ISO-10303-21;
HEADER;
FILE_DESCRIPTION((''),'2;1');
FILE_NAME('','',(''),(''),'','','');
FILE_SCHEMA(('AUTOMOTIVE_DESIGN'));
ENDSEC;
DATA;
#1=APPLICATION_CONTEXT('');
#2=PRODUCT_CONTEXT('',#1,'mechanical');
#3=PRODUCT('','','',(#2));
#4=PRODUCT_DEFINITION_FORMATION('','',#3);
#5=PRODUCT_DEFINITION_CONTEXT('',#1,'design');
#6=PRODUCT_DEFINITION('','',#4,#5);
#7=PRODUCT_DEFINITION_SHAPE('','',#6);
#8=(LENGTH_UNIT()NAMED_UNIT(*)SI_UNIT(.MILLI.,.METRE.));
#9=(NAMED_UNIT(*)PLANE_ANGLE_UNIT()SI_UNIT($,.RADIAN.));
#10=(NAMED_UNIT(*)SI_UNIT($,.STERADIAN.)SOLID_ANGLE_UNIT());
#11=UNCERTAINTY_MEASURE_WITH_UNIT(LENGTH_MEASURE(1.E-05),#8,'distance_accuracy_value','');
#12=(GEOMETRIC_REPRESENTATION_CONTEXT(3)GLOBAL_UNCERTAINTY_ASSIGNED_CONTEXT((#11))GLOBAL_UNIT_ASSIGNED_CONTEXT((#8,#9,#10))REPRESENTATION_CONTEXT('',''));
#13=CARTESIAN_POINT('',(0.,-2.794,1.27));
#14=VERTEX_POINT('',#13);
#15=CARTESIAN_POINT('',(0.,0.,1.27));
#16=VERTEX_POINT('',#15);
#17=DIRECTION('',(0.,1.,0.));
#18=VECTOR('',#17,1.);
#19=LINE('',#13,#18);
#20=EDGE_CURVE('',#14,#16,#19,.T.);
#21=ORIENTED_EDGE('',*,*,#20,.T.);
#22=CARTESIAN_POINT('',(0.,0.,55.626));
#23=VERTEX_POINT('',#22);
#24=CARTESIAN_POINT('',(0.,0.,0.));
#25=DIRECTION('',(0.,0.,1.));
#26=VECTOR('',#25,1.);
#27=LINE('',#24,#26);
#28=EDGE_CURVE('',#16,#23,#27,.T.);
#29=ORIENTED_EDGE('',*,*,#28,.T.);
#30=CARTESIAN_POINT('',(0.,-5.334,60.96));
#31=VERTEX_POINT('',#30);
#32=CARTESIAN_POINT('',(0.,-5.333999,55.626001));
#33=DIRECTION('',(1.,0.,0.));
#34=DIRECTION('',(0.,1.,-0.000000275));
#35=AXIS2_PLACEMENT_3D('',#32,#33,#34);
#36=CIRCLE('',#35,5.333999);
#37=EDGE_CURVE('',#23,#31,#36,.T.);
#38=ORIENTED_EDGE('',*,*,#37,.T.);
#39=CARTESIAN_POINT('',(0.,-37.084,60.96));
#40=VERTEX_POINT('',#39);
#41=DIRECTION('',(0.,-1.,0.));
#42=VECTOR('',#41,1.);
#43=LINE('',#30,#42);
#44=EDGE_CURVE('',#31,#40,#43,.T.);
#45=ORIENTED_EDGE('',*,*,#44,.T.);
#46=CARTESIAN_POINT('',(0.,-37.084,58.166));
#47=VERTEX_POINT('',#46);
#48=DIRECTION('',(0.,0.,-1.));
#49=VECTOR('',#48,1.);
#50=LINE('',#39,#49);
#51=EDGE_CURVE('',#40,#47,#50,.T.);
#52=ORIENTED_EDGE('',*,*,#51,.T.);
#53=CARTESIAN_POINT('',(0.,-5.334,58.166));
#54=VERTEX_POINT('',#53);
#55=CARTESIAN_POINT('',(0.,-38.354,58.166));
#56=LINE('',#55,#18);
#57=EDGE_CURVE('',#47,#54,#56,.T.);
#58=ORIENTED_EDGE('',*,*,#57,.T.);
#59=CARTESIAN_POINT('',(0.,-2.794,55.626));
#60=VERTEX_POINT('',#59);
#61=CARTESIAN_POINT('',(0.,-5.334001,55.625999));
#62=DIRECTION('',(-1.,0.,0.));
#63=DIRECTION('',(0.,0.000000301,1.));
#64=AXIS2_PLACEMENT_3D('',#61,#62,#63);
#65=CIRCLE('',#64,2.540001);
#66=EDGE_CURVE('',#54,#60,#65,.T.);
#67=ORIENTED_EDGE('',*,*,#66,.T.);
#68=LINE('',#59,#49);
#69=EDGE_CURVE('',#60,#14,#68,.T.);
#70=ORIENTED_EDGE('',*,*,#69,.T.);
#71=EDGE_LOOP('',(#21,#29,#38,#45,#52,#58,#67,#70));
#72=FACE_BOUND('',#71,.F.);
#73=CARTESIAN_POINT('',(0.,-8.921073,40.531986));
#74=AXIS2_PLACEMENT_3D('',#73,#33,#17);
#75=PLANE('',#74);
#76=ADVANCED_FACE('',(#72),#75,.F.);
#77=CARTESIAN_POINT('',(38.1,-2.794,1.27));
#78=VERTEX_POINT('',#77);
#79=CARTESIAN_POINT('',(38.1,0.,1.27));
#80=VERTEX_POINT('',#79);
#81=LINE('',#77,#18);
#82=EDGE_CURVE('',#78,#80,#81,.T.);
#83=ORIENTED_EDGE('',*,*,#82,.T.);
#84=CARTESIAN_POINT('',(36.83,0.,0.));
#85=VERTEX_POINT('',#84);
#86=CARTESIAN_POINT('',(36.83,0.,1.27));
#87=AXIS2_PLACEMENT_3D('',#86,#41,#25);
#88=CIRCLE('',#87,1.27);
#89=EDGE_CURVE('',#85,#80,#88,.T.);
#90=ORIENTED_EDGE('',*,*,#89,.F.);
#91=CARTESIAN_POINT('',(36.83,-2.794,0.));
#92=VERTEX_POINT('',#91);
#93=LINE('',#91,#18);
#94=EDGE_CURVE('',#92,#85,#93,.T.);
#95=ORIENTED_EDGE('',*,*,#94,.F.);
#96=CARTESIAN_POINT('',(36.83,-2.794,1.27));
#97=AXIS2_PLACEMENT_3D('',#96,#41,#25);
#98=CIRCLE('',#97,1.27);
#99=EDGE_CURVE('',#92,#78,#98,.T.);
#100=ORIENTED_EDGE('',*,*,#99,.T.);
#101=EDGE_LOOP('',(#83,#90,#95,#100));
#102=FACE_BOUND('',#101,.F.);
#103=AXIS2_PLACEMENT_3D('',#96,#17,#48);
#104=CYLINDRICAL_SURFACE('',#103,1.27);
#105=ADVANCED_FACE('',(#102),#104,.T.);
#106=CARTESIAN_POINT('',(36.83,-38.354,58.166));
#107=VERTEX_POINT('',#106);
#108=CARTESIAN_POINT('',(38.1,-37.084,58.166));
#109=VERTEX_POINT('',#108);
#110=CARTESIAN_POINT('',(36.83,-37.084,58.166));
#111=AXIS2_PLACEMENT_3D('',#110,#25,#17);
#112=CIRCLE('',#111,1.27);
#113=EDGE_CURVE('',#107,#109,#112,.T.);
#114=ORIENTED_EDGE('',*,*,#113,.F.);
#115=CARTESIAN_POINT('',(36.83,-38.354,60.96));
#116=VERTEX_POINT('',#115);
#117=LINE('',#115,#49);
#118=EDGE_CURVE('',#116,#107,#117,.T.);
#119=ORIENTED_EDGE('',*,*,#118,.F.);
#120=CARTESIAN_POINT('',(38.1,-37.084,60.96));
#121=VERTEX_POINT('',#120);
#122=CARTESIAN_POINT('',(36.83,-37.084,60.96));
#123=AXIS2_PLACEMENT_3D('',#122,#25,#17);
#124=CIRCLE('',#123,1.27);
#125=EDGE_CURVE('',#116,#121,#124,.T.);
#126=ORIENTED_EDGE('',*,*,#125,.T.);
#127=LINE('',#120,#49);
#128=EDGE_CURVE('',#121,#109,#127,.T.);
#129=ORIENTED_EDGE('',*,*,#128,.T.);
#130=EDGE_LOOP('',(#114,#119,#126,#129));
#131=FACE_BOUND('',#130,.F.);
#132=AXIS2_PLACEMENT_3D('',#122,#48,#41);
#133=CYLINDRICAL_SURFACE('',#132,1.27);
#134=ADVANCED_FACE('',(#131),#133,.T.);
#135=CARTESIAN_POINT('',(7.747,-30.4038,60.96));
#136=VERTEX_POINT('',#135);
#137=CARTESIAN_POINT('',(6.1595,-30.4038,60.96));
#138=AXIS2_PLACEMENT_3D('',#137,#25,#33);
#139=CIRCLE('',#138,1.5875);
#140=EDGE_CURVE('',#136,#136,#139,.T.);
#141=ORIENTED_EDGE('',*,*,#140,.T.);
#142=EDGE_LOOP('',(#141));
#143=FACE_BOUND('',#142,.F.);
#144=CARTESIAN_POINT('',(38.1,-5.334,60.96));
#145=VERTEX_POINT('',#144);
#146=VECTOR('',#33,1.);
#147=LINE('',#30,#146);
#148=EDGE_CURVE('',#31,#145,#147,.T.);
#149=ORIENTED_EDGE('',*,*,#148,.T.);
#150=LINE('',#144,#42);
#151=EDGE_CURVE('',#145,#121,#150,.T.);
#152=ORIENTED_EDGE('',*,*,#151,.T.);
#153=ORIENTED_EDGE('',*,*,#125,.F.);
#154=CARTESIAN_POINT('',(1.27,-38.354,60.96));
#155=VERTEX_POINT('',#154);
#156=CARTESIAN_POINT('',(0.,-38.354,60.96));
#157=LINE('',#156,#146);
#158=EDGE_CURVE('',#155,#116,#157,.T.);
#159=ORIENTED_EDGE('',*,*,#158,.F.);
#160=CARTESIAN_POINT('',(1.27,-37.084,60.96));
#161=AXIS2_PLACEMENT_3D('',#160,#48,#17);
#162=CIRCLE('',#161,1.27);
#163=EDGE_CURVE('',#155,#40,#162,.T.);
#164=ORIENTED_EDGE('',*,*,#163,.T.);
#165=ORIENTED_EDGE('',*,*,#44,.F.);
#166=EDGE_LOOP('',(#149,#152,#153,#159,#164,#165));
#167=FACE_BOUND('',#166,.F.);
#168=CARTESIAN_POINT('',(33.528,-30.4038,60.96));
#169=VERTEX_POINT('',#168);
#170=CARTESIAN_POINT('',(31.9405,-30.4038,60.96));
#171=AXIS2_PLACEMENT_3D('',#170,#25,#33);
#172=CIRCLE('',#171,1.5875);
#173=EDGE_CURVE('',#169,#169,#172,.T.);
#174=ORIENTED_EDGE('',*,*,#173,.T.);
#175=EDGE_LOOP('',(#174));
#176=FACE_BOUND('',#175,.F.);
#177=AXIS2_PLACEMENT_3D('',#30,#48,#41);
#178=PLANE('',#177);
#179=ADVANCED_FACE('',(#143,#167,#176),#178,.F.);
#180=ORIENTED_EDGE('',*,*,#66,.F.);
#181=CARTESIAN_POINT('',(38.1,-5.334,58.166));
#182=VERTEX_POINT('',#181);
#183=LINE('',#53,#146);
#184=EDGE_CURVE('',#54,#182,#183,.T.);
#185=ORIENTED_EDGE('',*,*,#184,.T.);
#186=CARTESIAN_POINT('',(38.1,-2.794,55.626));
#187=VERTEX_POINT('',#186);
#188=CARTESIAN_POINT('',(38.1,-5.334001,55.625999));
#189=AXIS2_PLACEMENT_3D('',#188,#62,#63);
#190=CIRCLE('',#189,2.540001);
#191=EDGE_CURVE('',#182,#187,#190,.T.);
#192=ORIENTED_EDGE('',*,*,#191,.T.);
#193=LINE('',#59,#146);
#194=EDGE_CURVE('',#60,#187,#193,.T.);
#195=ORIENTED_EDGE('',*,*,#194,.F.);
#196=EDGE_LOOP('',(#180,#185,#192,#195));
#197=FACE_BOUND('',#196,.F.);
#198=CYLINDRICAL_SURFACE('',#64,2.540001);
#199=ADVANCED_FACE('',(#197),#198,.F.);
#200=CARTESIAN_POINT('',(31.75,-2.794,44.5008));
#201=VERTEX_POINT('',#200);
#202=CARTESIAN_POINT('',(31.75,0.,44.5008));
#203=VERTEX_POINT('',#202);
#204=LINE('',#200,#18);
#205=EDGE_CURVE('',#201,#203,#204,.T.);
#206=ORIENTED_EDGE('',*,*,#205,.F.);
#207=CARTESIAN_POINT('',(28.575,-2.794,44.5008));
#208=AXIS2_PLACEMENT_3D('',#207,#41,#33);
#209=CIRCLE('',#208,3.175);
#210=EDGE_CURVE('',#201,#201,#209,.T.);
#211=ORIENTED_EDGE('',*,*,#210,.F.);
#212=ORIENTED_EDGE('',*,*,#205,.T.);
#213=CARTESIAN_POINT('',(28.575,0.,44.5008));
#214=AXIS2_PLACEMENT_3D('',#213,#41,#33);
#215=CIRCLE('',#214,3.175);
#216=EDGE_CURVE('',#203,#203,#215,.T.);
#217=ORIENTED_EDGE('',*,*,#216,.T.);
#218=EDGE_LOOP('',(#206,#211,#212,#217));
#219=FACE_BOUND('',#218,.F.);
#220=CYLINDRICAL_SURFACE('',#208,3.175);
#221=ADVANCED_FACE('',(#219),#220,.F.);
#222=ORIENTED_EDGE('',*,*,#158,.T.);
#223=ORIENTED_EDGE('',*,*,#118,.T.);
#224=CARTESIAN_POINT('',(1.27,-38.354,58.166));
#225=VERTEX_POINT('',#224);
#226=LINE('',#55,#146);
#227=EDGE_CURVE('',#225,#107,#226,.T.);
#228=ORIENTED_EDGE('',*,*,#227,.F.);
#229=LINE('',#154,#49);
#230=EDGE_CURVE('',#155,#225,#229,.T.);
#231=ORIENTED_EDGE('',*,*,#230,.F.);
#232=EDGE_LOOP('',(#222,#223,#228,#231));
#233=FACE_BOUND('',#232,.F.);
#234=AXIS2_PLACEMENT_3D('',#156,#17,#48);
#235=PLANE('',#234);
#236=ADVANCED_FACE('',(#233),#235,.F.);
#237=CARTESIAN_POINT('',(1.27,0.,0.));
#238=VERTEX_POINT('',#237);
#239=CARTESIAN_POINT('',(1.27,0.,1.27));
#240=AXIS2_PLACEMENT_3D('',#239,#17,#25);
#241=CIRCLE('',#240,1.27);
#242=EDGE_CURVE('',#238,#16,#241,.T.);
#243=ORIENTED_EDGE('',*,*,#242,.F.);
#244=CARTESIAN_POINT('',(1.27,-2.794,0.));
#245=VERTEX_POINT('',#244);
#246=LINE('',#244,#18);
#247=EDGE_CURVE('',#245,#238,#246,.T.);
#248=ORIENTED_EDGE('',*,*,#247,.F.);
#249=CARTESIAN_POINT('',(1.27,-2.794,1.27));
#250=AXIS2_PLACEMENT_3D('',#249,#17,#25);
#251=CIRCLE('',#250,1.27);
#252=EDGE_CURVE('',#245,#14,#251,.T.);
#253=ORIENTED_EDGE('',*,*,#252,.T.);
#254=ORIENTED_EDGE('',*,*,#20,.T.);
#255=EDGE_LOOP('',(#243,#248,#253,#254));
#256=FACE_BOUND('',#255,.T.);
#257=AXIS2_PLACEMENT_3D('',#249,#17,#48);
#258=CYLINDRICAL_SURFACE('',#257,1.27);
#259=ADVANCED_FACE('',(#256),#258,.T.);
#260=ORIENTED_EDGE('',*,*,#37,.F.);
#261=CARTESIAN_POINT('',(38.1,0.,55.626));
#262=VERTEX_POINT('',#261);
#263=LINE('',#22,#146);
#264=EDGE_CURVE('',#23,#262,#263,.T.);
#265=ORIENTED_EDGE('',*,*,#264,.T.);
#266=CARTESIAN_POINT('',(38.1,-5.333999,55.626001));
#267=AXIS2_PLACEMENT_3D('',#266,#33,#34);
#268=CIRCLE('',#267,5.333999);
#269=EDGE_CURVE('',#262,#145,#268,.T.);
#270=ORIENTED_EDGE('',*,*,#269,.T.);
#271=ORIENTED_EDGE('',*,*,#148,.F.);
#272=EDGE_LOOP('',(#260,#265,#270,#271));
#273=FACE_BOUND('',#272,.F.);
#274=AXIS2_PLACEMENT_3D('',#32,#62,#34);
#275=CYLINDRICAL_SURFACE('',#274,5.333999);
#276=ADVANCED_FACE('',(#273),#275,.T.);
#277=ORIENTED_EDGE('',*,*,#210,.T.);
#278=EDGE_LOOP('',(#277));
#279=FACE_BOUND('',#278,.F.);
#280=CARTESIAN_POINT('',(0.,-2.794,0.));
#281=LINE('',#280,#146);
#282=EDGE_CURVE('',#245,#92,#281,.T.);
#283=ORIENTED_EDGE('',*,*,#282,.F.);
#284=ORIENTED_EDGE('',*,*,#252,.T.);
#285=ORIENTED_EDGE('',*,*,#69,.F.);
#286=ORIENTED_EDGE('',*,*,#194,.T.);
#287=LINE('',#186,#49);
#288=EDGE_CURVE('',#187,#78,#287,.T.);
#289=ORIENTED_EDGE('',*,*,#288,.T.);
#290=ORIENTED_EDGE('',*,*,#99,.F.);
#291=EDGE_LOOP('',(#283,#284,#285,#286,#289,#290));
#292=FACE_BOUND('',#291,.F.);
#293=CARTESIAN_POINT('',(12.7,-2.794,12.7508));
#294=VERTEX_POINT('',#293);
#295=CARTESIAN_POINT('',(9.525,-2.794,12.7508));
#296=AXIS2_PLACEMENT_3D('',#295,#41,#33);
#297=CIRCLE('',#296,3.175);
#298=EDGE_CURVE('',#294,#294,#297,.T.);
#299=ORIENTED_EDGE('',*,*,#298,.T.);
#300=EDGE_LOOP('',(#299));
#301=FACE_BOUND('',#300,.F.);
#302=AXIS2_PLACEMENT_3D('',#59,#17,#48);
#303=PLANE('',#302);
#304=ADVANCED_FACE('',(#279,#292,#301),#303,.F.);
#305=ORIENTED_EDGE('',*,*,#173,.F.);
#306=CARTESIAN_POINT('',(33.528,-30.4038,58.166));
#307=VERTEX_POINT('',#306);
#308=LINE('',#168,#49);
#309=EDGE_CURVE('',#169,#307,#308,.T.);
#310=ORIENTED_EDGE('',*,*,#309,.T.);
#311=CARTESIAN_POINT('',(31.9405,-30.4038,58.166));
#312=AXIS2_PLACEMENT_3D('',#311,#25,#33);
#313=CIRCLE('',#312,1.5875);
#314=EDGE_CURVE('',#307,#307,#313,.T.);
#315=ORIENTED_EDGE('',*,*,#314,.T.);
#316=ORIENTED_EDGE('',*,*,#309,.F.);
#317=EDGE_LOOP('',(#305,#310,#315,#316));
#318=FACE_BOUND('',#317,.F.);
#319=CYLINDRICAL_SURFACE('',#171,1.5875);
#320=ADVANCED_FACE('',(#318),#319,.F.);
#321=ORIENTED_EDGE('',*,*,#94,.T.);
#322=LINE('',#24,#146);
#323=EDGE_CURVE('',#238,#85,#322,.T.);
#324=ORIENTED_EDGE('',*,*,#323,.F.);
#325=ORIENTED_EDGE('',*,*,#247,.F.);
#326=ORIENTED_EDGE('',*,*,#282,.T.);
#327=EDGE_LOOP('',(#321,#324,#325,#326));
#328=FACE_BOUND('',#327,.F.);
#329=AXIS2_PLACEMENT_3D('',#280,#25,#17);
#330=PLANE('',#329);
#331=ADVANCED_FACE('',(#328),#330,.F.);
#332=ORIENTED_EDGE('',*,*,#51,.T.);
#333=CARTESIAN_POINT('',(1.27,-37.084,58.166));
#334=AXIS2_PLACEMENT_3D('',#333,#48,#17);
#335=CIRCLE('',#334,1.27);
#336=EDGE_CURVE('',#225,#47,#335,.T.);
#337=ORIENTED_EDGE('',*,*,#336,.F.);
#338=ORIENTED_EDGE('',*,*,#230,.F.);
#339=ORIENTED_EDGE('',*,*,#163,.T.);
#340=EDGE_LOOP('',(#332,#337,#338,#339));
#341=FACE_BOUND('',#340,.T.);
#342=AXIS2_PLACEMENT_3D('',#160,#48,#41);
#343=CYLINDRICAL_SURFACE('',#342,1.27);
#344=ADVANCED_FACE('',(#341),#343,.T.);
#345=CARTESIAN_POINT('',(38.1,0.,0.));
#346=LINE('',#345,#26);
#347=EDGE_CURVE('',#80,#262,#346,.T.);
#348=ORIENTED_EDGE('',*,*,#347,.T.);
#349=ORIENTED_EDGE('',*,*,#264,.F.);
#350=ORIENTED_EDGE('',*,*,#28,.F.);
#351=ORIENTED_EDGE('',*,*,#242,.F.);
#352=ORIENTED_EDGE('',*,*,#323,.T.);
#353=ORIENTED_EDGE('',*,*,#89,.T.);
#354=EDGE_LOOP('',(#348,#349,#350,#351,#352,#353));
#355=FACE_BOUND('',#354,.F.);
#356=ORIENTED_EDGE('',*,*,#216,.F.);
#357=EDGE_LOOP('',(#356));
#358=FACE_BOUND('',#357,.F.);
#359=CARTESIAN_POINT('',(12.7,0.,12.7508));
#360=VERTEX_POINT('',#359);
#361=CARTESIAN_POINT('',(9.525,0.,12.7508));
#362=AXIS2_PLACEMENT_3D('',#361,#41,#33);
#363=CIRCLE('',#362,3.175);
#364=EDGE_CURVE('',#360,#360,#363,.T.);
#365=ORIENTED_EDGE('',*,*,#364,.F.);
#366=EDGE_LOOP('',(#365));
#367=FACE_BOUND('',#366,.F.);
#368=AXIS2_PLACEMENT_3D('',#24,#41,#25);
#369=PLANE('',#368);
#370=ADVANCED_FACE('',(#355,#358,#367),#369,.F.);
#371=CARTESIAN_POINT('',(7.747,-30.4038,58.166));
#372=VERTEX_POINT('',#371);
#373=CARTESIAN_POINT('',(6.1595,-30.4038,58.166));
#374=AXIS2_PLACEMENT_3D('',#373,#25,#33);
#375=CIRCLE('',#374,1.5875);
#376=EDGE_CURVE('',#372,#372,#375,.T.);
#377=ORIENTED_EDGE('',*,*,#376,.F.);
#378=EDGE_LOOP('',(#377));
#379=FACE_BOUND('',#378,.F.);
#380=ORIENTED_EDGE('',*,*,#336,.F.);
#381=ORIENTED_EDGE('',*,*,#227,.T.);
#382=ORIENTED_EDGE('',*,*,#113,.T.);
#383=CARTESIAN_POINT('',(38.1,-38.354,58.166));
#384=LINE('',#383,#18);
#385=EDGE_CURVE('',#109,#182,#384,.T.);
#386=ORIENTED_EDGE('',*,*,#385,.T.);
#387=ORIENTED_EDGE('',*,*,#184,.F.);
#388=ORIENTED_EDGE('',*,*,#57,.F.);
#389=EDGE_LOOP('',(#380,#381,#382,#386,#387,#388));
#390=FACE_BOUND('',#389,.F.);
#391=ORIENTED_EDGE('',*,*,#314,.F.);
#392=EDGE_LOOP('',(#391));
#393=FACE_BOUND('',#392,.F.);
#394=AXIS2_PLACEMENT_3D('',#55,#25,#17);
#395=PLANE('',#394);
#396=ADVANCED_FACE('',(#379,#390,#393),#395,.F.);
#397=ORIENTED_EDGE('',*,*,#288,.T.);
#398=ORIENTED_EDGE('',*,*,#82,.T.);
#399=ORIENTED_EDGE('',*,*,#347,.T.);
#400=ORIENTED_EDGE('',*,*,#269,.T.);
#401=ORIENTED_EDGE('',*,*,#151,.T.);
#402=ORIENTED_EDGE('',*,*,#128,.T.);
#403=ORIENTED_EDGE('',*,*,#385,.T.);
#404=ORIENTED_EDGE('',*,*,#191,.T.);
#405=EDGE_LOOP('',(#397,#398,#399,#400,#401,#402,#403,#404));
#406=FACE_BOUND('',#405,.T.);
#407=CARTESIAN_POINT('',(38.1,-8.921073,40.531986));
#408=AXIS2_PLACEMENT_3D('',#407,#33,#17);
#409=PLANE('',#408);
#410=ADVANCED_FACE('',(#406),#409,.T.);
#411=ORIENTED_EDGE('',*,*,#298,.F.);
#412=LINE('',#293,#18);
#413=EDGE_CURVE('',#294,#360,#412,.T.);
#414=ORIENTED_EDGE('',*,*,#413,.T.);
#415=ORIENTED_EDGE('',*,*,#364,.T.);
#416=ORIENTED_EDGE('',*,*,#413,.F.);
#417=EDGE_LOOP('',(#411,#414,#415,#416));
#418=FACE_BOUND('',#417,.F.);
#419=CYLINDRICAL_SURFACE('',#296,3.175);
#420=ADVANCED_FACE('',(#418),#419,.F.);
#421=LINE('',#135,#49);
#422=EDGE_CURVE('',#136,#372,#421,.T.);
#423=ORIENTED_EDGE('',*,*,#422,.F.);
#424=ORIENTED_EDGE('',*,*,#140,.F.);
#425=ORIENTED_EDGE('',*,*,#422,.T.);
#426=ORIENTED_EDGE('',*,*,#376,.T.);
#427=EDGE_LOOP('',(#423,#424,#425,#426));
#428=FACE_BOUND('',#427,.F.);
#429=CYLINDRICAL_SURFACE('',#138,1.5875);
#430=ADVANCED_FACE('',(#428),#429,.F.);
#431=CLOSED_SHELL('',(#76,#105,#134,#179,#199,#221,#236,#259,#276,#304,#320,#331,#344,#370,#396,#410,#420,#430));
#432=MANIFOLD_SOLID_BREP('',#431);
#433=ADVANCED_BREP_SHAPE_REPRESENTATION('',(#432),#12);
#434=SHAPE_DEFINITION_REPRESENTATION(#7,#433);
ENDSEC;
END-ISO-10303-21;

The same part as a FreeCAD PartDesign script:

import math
import FreeCAD as App
import Part
import Sketcher

V = App.Vector
Q = App.Units.Quantity


def edges_at(feature, points):
    """Names of the edges that pass closest to the given points."""
    edges = feature.Shape.Edges
    near = lambda p: min(range(len(edges)), key=lambda i: edges[i].distToShape(Part.Vertex(*p))[0])
    return sorted({f"Edge{near(p) + 1}" for p in points})

doc = App.newDocument("Part")
body = doc.addObject("PartDesign::Body", "Body")

# Sketch on YZ plane
sketch1 = body.newObject("Sketcher::SketchObject", "Sketch")
sketch1.AttachmentSupport = (doc.getObject("YZ_Plane"), [""])
sketch1.MapMode = "FlatFace"
sketch1.addGeometry([
    Part.LineSegment(V(-2.8, 0, 0), V(0, 0, 0)),  # 0
    Part.LineSegment(V(0, 0, 0), V(0, 55.6, 0)),  # 1
    Part.ArcOfCircle(Part.Circle(V(-5.3, 55.6, 0), V(0, 0, 1), 5.3), math.radians(0), math.radians(90)),  # 2
    Part.LineSegment(V(-5.3, 61, 0), V(-38.4, 61, 0)),  # 3
    Part.LineSegment(V(-38.4, 61, 0), V(-38.4, 58.2, 0)),  # 4
    Part.LineSegment(V(-38.4, 58.2, 0), V(-5.3, 58.2, 0)),  # 5
    Part.ArcOfCircle(Part.Circle(V(-5.3, 55.6, 0), V(0, 0, 1), 2.5), math.radians(0), math.radians(90)),  # 6
    Part.LineSegment(V(-2.8, 55.6, 0), V(-2.8, 0, 0)),  # 7
], False)
sketch1.addConstraint([
    Sketcher.Constraint("Coincident", 0, 2, 1, 1),
    Sketcher.Constraint("Tangent", 1, 2, 2, 1),
    Sketcher.Constraint("Tangent", 2, 2, 3, 1),
    Sketcher.Constraint("Coincident", 3, 2, 4, 1),
    Sketcher.Constraint("Coincident", 4, 2, 5, 1),
    Sketcher.Constraint("Tangent", 5, 2, 6, 2),
    Sketcher.Constraint("Tangent", 6, 1, 7, 1),
    Sketcher.Constraint("Coincident", 7, 2, 0, 1),
    Sketcher.Constraint("Horizontal", 0),
    Sketcher.Constraint("Vertical", 1),
    Sketcher.Constraint("Horizontal", 3),
    Sketcher.Constraint("Vertical", 4),
    Sketcher.Constraint("Horizontal", 5),
    Sketcher.Constraint("Vertical", 7),
    Sketcher.Constraint("Coincident", 0, 2, -1, 1),
    Sketcher.Constraint("Coincident", 6, 3, 2, 3),
    Sketcher.Constraint("Radius", 6, Q("0.1 in")),
    Sketcher.Constraint("Radius", 2, Q("0.2099999 in")),
    Sketcher.Constraint("DistanceX", 3, 2, 3, 1, Q("1.3 in")),
    Sketcher.Constraint("DistanceY", 1, 1, 1, 2, Q("2.19 in")),
])
pad1 = body.newObject("PartDesign::Pad", "Pad")
pad1.Profile = sketch1
pad1.Length = Q("1.5 in")
doc.recompute()

fillet = body.newObject("PartDesign::Fillet", "Fillet")
fillet.Base = (pad1, edges_at(pad1, [
    (0, -38.354, 59.563),
    (38.1, -38.354, 59.563),
    (38.1, -1.397, 0),
    (0, -1.397, 0),
]))
fillet.Radius = Q("0.05 in")

# Sketch on XY plane
sketch2 = body.newObject("Sketcher::SketchObject", "Sketch001")
sketch2.AttachmentSupport = (doc.getObject("XY_Plane"), [""])
sketch2.MapMode = "FlatFace"
sketch2.AttachmentOffset = App.Placement(V(0, 0, 2.4 * 25.4), App.Rotation())
sketch2.addGeometry([
    Part.Circle(V(31.9, -30.4, 0), V(0, 0, 1), 1.6),
    Part.Circle(V(6.2, -30.4, 0), V(0, 0, 1), 1.6),
], False)
sketch2.addConstraint([
    Sketcher.Constraint("Equal", 0, 1),
    Sketcher.Constraint("Horizontal", 0, 3, 1, 3),
    Sketcher.Constraint("Diameter", 0, Q("0.125 in")),
    Sketcher.Constraint("DistanceY", 0, 3, -1, 1, Q("1.197 in")),
    Sketcher.Constraint("DistanceX", 1, 3, 0, 3, Q("1.015 in")),
    Sketcher.Constraint("DistanceX", -1, 1, 0, 3, Q("1.2575 in")),
])
pocket1 = body.newObject("PartDesign::Pocket", "Pocket")
pocket1.Profile = sketch2
pocket1.Type = "ThroughAll"

# Sketch on XZ plane
sketch3 = body.newObject("Sketcher::SketchObject", "Sketch002")
sketch3.AttachmentSupport = (doc.getObject("XZ_Plane"), [""])
sketch3.MapMode = "FlatFace"
sketch3.AttachmentOffset = App.Placement(V(0, 0, 0.11 * 25.4), App.Rotation())
sketch3.addGeometry([
    Part.Circle(V(28.6, 44.5, 0), V(0, 0, 1), 3.2),
    Part.Circle(V(9.5, 12.8, 0), V(0, 0, 1), 3.2),
], False)
sketch3.addConstraint([
    Sketcher.Constraint("Equal", 0, 1),
    Sketcher.Constraint("Diameter", 0, Q("0.25 in")),
    Sketcher.Constraint("DistanceX", 1, 3, 0, 3, Q("0.75 in")),
    Sketcher.Constraint("DistanceY", 1, 3, 0, 3, Q("1.25 in")),
    Sketcher.Constraint("DistanceX", -1, 1, 0, 3, Q("1.125 in")),
    Sketcher.Constraint("DistanceY", -1, 1, 0, 3, Q("1.752 in")),
])
pocket2 = body.newObject("PartDesign::Pocket", "Pocket001")
pocket2.Profile = sketch3
pocket2.Type = "ThroughAll"

doc.recompute()
